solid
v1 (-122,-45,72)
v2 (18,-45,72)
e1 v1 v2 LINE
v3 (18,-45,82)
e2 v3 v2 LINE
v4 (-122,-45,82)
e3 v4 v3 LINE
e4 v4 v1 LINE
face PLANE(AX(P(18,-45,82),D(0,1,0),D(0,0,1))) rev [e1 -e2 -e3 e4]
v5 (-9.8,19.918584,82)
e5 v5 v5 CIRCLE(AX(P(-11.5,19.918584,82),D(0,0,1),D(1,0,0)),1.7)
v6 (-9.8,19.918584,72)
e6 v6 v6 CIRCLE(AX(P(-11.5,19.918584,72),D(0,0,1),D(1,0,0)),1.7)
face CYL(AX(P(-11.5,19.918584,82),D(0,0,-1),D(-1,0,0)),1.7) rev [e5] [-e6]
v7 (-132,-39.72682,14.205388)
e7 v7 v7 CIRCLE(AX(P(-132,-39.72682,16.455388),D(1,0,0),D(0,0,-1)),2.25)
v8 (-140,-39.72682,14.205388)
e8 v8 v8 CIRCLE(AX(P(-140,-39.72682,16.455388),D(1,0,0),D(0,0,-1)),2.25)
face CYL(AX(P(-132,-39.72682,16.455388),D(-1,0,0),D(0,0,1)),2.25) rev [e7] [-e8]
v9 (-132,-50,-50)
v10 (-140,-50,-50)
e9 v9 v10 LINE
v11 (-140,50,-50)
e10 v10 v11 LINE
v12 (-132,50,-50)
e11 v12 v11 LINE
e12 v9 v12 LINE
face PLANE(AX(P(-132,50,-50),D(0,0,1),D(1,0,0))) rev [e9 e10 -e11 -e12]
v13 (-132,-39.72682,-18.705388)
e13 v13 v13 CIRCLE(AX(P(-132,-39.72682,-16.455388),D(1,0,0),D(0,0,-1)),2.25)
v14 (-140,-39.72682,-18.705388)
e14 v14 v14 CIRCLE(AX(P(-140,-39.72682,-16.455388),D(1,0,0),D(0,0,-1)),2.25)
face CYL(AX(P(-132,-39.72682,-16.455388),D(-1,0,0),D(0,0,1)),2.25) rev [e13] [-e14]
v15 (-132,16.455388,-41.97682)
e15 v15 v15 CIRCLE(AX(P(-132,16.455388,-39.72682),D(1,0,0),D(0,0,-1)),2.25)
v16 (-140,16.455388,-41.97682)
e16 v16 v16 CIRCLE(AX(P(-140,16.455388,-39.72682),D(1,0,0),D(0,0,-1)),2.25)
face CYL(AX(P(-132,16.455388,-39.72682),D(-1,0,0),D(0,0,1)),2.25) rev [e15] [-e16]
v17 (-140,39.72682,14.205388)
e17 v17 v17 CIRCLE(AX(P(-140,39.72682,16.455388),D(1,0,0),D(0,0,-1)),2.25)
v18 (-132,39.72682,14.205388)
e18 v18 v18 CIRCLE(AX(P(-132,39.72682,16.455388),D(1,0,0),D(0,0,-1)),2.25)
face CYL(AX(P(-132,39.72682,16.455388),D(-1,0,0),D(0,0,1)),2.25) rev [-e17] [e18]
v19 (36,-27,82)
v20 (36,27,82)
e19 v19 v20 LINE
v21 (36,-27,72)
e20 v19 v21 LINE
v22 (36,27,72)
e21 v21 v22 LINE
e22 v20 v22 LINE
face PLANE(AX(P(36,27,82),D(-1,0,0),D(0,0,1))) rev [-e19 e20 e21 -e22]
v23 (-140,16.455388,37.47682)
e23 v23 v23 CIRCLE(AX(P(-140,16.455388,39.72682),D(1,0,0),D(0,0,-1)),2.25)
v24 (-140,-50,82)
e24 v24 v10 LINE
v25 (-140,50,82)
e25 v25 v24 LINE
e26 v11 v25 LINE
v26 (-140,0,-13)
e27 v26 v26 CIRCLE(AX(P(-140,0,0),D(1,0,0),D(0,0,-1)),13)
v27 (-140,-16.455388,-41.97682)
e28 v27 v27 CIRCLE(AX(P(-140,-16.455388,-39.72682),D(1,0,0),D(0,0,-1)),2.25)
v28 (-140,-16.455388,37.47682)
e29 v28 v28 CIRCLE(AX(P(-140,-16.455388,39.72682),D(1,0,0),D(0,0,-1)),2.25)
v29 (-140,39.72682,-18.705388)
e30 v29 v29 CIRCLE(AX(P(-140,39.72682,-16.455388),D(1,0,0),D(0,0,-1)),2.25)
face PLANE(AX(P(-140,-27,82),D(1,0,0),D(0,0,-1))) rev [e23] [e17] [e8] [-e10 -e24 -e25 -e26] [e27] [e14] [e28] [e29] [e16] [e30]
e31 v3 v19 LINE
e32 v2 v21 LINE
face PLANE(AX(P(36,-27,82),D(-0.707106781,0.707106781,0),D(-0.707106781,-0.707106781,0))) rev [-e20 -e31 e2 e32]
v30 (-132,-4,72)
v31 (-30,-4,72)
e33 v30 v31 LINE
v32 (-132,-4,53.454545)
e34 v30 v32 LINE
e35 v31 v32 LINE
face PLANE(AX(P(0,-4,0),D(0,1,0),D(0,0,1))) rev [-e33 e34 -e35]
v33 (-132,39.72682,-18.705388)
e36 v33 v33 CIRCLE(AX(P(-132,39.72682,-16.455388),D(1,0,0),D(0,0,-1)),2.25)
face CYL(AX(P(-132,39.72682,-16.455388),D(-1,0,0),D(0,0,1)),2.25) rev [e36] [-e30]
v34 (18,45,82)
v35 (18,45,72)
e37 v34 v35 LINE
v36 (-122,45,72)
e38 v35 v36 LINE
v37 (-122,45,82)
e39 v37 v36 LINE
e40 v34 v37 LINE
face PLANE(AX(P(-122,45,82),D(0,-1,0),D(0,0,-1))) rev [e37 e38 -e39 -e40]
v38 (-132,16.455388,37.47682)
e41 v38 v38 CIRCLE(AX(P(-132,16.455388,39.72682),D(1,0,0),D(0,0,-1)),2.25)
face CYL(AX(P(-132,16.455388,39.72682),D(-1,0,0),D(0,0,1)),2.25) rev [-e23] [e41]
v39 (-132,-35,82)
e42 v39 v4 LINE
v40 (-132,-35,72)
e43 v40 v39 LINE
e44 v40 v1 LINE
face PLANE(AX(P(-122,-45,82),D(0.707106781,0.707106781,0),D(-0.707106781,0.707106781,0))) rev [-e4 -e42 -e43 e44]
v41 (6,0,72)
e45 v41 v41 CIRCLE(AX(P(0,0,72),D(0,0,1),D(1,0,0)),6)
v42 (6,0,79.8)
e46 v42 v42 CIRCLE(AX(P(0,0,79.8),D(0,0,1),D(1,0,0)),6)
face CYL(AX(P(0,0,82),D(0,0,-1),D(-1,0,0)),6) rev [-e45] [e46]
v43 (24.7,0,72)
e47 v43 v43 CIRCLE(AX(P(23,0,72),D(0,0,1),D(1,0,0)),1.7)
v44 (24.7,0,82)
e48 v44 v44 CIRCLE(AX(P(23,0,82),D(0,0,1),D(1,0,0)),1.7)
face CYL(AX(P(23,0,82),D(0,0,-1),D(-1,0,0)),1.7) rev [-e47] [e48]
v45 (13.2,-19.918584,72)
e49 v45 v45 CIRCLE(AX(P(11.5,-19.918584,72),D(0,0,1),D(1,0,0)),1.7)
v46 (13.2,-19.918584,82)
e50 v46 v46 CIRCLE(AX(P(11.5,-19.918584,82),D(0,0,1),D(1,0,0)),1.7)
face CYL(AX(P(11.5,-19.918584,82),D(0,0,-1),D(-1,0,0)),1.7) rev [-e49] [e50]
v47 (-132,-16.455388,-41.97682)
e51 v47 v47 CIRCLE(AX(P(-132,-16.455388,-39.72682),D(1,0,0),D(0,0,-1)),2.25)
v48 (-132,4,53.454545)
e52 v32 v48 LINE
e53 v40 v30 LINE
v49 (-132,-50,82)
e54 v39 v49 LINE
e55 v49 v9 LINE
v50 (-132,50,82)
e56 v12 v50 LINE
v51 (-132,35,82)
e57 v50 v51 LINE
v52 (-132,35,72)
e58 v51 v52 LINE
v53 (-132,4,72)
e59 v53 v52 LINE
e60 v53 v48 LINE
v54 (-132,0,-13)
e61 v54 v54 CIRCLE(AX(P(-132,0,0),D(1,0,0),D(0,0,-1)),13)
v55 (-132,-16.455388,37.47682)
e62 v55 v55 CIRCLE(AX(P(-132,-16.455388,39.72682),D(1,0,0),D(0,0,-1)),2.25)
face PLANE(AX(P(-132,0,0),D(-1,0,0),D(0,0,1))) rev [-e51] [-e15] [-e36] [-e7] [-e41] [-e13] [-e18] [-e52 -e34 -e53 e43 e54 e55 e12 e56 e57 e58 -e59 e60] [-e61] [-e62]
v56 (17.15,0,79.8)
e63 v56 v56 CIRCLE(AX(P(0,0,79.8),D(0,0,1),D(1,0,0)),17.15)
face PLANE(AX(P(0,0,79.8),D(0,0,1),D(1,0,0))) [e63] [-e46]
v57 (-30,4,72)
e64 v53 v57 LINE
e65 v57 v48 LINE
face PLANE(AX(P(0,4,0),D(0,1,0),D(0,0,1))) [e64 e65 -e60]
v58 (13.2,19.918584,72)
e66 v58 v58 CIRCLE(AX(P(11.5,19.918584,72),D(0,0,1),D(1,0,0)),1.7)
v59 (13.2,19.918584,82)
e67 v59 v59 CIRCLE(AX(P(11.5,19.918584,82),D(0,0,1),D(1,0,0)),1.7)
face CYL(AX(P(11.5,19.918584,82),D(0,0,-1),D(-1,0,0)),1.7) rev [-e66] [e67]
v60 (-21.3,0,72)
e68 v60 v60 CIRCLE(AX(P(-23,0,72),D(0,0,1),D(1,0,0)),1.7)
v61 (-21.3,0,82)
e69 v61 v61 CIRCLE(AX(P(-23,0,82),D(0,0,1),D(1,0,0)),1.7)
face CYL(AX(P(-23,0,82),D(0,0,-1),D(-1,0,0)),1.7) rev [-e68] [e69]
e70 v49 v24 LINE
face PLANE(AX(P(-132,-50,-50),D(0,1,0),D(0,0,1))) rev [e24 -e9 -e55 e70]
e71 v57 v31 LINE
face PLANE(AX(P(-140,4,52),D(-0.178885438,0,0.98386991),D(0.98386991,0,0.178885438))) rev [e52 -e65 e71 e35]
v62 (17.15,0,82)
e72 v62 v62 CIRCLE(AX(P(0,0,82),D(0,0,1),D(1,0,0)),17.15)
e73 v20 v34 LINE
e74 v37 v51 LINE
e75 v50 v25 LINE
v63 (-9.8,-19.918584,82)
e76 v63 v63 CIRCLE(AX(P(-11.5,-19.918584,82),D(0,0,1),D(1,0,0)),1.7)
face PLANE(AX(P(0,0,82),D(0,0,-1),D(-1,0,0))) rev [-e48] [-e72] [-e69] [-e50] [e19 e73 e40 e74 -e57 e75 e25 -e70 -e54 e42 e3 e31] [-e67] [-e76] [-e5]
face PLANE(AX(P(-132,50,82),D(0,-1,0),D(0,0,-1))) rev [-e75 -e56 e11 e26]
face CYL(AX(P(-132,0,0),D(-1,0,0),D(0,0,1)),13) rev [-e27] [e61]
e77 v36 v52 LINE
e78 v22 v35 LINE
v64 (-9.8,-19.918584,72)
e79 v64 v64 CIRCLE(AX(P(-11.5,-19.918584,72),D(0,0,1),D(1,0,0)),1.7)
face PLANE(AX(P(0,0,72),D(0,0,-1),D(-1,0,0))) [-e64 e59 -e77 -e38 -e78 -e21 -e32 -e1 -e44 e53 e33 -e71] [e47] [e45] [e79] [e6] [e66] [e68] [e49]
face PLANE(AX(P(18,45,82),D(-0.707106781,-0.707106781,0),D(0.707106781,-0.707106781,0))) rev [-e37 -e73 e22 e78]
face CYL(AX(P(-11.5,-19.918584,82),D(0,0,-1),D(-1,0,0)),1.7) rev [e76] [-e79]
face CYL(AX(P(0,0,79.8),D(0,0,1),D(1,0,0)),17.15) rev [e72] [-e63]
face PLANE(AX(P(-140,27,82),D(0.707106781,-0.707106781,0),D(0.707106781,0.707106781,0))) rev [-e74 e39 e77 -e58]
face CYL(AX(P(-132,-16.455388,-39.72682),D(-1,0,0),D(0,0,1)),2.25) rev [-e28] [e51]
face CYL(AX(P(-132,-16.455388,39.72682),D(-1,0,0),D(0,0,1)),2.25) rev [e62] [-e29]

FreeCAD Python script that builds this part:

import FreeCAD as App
import Part
import Sketcher
from FreeCAD import Vector

doc = App.newDocument("Part")
body = doc.addObject("PartDesign::Body", "Body")

sketch1 = body.newObject("Sketcher::SketchObject", "Sketch")
sketch1.AttachmentSupport = (doc.getObject("XY_Plane"), [""])
sketch1.MapMode = "FlatFace"
sketch1.AttachmentOffset = App.Placement(Vector(0, 0, 72), App.Rotation())
sketch1.addGeometry(Part.LineSegment(Vector(18, 45, 0), Vector(-122, 45, 0)), False)
sketch1.addGeometry(Part.LineSegment(Vector(-122, 45, 0), Vector(-140, 27, 0)), False)
sketch1.addGeometry(Part.LineSegment(Vector(-140, 27, 0), Vector(-140, -27, 0)), False)
sketch1.addGeometry(Part.LineSegment(Vector(-140, -27, 0), Vector(-122, -45, 0)), False)
sketch1.addGeometry(Part.LineSegment(Vector(-122, -45, 0), Vector(18, -45, 0)), False)
sketch1.addGeometry(Part.LineSegment(Vector(18, -45, 0), Vector(36, -27, 0)), False)
sketch1.addGeometry(Part.LineSegment(Vector(36, -27, 0), Vector(36, 27, 0)), False)
sketch1.addGeometry(Part.LineSegment(Vector(36, 27, 0), Vector(18, 45, 0)), False)
sketch1.addGeometry(Part.Circle(Vector(11.5, -19.918584, 0), Vector(0, 0, 1), 1.7), False)
sketch1.addGeometry(Part.Circle(Vector(-11.5, -19.918584, 0), Vector(0, 0, 1), 1.7), False)
sketch1.addGeometry(Part.Circle(Vector(23, 0, 0), Vector(0, 0, 1), 1.7), False)
sketch1.addGeometry(Part.Circle(Vector(11.5, 19.918584, 0), Vector(0, 0, 1), 1.7), False)
sketch1.addGeometry(Part.Circle(Vector(0, 0, 0), Vector(0, 0, 1), 6), False)
sketch1.addGeometry(Part.Circle(Vector(-23, 0, 0), Vector(0, 0, 1), 1.7), False)
sketch1.addGeometry(Part.Circle(Vector(-11.5, 19.918584, 0), Vector(0, 0, 1), 1.7), False)
sketch1.addConstraint(Sketcher.Constraint("Coincident", 0, 2, 1, 1))
sketch1.addConstraint(Sketcher.Constraint("Coincident", 1, 2, 2, 1))
sketch1.addConstraint(Sketcher.Constraint("Coincident", 2, 2, 3, 1))
sketch1.addConstraint(Sketcher.Constraint("Coincident", 3, 2, 4, 1))
sketch1.addConstraint(Sketcher.Constraint("Coincident", 4, 2, 5, 1))
sketch1.addConstraint(Sketcher.Constraint("Coincident", 5, 2, 6, 1))
sketch1.addConstraint(Sketcher.Constraint("Coincident", 6, 2, 7, 1))
sketch1.addConstraint(Sketcher.Constraint("Coincident", 7, 2, 0, 1))
sketch1.addConstraint(Sketcher.Constraint("Horizontal", 0))
sketch1.addConstraint(Sketcher.Constraint("Vertical", 2))
sketch1.addConstraint(Sketcher.Constraint("Horizontal", 4))
sketch1.addConstraint(Sketcher.Constraint("Vertical", 6))
sketch1.addConstraint(Sketcher.Constraint("Coincident", 12, 3, -1, 1))
sketch1.addConstraint(Sketcher.Constraint("Equal", 8, 9))
sketch1.addConstraint(Sketcher.Constraint("Equal", 9, 10))
sketch1.addConstraint(Sketcher.Constraint("Equal", 10, 11))
sketch1.addConstraint(Sketcher.Constraint("Equal", 11, 13))
sketch1.addConstraint(Sketcher.Constraint("Equal", 13, 14))
sketch1.addConstraint(Sketcher.Constraint("Symmetric", 9, 3, 11, 3, -1, 1))
sketch1.addConstraint(Sketcher.Constraint("Symmetric", 10, 3, 13, 3, -1, 1))
sketch1.addConstraint(Sketcher.Constraint("Symmetric", 8, 3, 14, 3, -1, 1))
sketch1.addConstraint(Sketcher.Constraint("Symmetric", 8, 3, 9, 3, -2))
sketch1.addConstraint(Sketcher.Constraint("Symmetric", 0, 2, 3, 2, -1))
sketch1.addConstraint(Sketcher.Constraint("PointOnObject", 10, 3, -1))
sketch1.addConstraint(Sketcher.Constraint("Perpendicular", 1, 3))
sketch1.addConstraint(Sketcher.Constraint("Perpendicular", 3, 5))
sketch1.addConstraint(Sketcher.Constraint("Perpendicular", 5, 7))
sketch1.addConstraint(Sketcher.Constraint("Horizontal", 2, 2, 5, 2))
sketch1.addConstraint(Sketcher.Constraint("Horizontal", 1, 2, 6, 2))
sketch1.addConstraint(Sketcher.Constraint("Vertical", 4, 2, 7, 2))
sketch1.addConstraint(Sketcher.Constraint("Diameter", 12, 12.0))
sketch1.addConstraint(Sketcher.Constraint("Diameter", 8, 3.4))
sketch1.addConstraint(Sketcher.Constraint("DistanceX", 0, 2, 0, 1, 140.0))
sketch1.addConstraint(Sketcher.Constraint("DistanceY", 2, 2, 2, 1, 54.0))
sketch1.addConstraint(Sketcher.Constraint("DistanceX", -1, 1, 10, 3, 23.0))
sketch1.addConstraint(Sketcher.Constraint("DistanceX", 0, 2, -1, 1, 122.0))
sketch1.addConstraint(Sketcher.Constraint("DistanceY", -1, 1, 0, 2, 45.0))
sketch1.addConstraint(Sketcher.Constraint("DistanceX", 9, 3, 8, 3, 23.0))
sketch1.addConstraint(Sketcher.Constraint("DistanceY", 8, 3, 11, 3, 39.837169))
pad1 = body.newObject("PartDesign::Pad", "Pad")
pad1.Profile = sketch1
pad1.Length = 10

sketch2 = body.newObject("Sketcher::SketchObject", "Sketch001")
sketch2.AttachmentSupport = (doc.getObject("XY_Plane"), [""])
sketch2.MapMode = "FlatFace"
sketch2.AttachmentOffset = App.Placement(Vector(0, 0, 82), App.Rotation())
sketch2.addGeometry(Part.Circle(Vector(0, 0, 0), Vector(0, 0, 1), 17.15), False)
sketch2.addConstraint(Sketcher.Constraint("Coincident", 0, 3, -1, 1))
sketch2.addConstraint(Sketcher.Constraint("Diameter", 0, 34.3))
pocket1 = body.newObject("PartDesign::Pocket", "Pocket")
pocket1.Profile = sketch2
pocket1.Length = 2.2

sketch3 = body.newObject("Sketcher::SketchObject", "Sketch002")
sketch3.AttachmentSupport = (doc.getObject("YZ_Plane"), [""])
sketch3.MapMode = "FlatFace"
sketch3.AttachmentOffset = App.Placement(Vector(0, 0, -140), App.Rotation())
sketch3.addGeometry(Part.LineSegment(Vector(50, 82, 0), Vector(-50, 82, 0)), False)
sketch3.addGeometry(Part.LineSegment(Vector(-50, 82, 0), Vector(-50, -50, 0)), False)
sketch3.addGeometry(Part.LineSegment(Vector(-50, -50, 0), Vector(50, -50, 0)), False)
sketch3.addGeometry(Part.LineSegment(Vector(50, -50, 0), Vector(50, 82, 0)), False)
sketch3.addGeometry(Part.Circle(Vector(-39.72682, 16.455388, 0), Vector(0, 0, 1), 2.25), False)
sketch3.addGeometry(Part.Circle(Vector(-16.455388, 39.72682, 0), Vector(0, 0, 1), 2.25), False)
sketch3.addGeometry(Part.Circle(Vector(-39.72682, -16.455388, 0), Vector(0, 0, 1), 2.25), False)
sketch3.addGeometry(Part.Circle(Vector(-16.455388, -39.72682, 0), Vector(0, 0, 1), 2.25), False)
sketch3.addGeometry(Part.Circle(Vector(16.455388, 39.72682, 0), Vector(0, 0, 1), 2.25), False)
sketch3.addGeometry(Part.Circle(Vector(39.72682, 16.455388, 0), Vector(0, 0, 1), 2.25), False)
sketch3.addGeometry(Part.Circle(Vector(0, 0, 0), Vector(0, 0, 1), 13), False)
sketch3.addGeometry(Part.Circle(Vector(16.455388, -39.72682, 0), Vector(0, 0, 1), 2.25), False)
sketch3.addGeometry(Part.Circle(Vector(39.72682, -16.455388, 0), Vector(0, 0, 1), 2.25), False)
sketch3.addConstraint(Sketcher.Constraint("Coincident", 0, 2, 1, 1))
sketch3.addConstraint(Sketcher.Constraint("Coincident", 1, 2, 2, 1))
sketch3.addConstraint(Sketcher.Constraint("Coincident", 2, 2, 3, 1))
sketch3.addConstraint(Sketcher.Constraint("Coincident", 3, 2, 0, 1))
sketch3.addConstraint(Sketcher.Constraint("Horizontal", 0))
sketch3.addConstraint(Sketcher.Constraint("Vertical", 1))
sketch3.addConstraint(Sketcher.Constraint("Horizontal", 2))
sketch3.addConstraint(Sketcher.Constraint("Vertical", 3))
sketch3.addConstraint(Sketcher.Constraint("Coincident", 10, 3, -1, 1))
sketch3.addConstraint(Sketcher.Constraint("Equal", 4, 5))
sketch3.addConstraint(Sketcher.Constraint("Equal", 5, 6))
sketch3.addConstraint(Sketcher.Constraint("Equal", 6, 7))
sketch3.addConstraint(Sketcher.Constraint("Equal", 7, 8))
sketch3.addConstraint(Sketcher.Constraint("Equal", 8, 9))
sketch3.addConstraint(Sketcher.Constraint("Equal", 9, 11))
sketch3.addConstraint(Sketcher.Constraint("Equal", 11, 12))
sketch3.addConstraint(Sketcher.Constraint("Symmetric", 7, 3, 8, 3, -1, 1))
sketch3.addConstraint(Sketcher.Constraint("Symmetric", 6, 3, 9, 3, -1, 1))
sketch3.addConstraint(Sketcher.Constraint("Symmetric", 5, 3, 11, 3, -1, 1))
sketch3.addConstraint(Sketcher.Constraint("Symmetric", 4, 3, 12, 3, -1, 1))
sketch3.addConstraint(Sketcher.Constraint("Symmetric", 5, 3, 8, 3, -2))
sketch3.addConstraint(Sketcher.Constraint("Symmetric", 4, 3, 9, 3, -2))
sketch3.addConstraint(Sketcher.Constraint("Diameter", 10, 26.0))
sketch3.addConstraint(Sketcher.Constraint("Diameter", 4, 4.5))
sketch3.addConstraint(Sketcher.Constraint("DistanceX", 0, 2, 0, 1, 100.0))
sketch3.addConstraint(Sketcher.Constraint("DistanceY", 1, 2, 1, 1, 132.0))
sketch3.addConstraint(Sketcher.Constraint("DistanceX", 0, 2, -1, 1, 50.0))
sketch3.addConstraint(Sketcher.Constraint("DistanceY", -1, 1, 0, 2, 82.0))
sketch3.addConstraint(Sketcher.Constraint("DistanceX", 4, 3, -1, 1, 39.72682))
sketch3.addConstraint(Sketcher.Constraint("DistanceY", -1, 1, 5, 3, 39.72682))
sketch3.addConstraint(Sketcher.Constraint("DistanceY", -1, 1, 4, 3, 16.455388))
sketch3.addConstraint(Sketcher.Constraint("DistanceX", 5, 3, -1, 1, 16.455388))
pad2 = body.newObject("PartDesign::Pad", "Pad001")
pad2.Profile = sketch3
pad2.Length = 8

sketch4 = body.newObject("Sketcher::SketchObject", "Sketch003")
sketch4.AttachmentSupport = (doc.getObject("XZ_Plane"), [""])
sketch4.MapMode = "FlatFace"
sketch4.AttachmentOffset = App.Placement(Vector(0, 0, 4), App.Rotation())
sketch4.addGeometry(Part.LineSegment(Vector(-30, 72, 0), Vector(-140, 52, 0)), False)
sketch4.addGeometry(Part.LineSegment(Vector(-140, 52, 0), Vector(-140, 72, 0)), False)
sketch4.addGeometry(Part.LineSegment(Vector(-140, 72, 0), Vector(-30, 72, 0)), False)
sketch4.addConstraint(Sketcher.Constraint("Coincident", 0, 2, 1, 1))
sketch4.addConstraint(Sketcher.Constraint("Coincident", 1, 2, 2, 1))
sketch4.addConstraint(Sketcher.Constraint("Coincident", 2, 2, 0, 1))
sketch4.addConstraint(Sketcher.Constraint("Vertical", 1))
sketch4.addConstraint(Sketcher.Constraint("Horizontal", 2))
sketch4.addConstraint(Sketcher.Constraint("DistanceX", 2, 1, 2, 2, 110.0))
sketch4.addConstraint(Sketcher.Constraint("DistanceY", 1, 1, 1, 2, 20.0))
sketch4.addConstraint(Sketcher.Constraint("DistanceX", 0, 2, -1, 1, 140.0))
sketch4.addConstraint(Sketcher.Constraint("DistanceY", -1, 1, 0, 2, 52.0))
pad3 = body.newObject("PartDesign::Pad", "Pad002")
pad3.Profile = sketch4
pad3.Length = 8
pad3.Reversed = True

doc.recompute()
